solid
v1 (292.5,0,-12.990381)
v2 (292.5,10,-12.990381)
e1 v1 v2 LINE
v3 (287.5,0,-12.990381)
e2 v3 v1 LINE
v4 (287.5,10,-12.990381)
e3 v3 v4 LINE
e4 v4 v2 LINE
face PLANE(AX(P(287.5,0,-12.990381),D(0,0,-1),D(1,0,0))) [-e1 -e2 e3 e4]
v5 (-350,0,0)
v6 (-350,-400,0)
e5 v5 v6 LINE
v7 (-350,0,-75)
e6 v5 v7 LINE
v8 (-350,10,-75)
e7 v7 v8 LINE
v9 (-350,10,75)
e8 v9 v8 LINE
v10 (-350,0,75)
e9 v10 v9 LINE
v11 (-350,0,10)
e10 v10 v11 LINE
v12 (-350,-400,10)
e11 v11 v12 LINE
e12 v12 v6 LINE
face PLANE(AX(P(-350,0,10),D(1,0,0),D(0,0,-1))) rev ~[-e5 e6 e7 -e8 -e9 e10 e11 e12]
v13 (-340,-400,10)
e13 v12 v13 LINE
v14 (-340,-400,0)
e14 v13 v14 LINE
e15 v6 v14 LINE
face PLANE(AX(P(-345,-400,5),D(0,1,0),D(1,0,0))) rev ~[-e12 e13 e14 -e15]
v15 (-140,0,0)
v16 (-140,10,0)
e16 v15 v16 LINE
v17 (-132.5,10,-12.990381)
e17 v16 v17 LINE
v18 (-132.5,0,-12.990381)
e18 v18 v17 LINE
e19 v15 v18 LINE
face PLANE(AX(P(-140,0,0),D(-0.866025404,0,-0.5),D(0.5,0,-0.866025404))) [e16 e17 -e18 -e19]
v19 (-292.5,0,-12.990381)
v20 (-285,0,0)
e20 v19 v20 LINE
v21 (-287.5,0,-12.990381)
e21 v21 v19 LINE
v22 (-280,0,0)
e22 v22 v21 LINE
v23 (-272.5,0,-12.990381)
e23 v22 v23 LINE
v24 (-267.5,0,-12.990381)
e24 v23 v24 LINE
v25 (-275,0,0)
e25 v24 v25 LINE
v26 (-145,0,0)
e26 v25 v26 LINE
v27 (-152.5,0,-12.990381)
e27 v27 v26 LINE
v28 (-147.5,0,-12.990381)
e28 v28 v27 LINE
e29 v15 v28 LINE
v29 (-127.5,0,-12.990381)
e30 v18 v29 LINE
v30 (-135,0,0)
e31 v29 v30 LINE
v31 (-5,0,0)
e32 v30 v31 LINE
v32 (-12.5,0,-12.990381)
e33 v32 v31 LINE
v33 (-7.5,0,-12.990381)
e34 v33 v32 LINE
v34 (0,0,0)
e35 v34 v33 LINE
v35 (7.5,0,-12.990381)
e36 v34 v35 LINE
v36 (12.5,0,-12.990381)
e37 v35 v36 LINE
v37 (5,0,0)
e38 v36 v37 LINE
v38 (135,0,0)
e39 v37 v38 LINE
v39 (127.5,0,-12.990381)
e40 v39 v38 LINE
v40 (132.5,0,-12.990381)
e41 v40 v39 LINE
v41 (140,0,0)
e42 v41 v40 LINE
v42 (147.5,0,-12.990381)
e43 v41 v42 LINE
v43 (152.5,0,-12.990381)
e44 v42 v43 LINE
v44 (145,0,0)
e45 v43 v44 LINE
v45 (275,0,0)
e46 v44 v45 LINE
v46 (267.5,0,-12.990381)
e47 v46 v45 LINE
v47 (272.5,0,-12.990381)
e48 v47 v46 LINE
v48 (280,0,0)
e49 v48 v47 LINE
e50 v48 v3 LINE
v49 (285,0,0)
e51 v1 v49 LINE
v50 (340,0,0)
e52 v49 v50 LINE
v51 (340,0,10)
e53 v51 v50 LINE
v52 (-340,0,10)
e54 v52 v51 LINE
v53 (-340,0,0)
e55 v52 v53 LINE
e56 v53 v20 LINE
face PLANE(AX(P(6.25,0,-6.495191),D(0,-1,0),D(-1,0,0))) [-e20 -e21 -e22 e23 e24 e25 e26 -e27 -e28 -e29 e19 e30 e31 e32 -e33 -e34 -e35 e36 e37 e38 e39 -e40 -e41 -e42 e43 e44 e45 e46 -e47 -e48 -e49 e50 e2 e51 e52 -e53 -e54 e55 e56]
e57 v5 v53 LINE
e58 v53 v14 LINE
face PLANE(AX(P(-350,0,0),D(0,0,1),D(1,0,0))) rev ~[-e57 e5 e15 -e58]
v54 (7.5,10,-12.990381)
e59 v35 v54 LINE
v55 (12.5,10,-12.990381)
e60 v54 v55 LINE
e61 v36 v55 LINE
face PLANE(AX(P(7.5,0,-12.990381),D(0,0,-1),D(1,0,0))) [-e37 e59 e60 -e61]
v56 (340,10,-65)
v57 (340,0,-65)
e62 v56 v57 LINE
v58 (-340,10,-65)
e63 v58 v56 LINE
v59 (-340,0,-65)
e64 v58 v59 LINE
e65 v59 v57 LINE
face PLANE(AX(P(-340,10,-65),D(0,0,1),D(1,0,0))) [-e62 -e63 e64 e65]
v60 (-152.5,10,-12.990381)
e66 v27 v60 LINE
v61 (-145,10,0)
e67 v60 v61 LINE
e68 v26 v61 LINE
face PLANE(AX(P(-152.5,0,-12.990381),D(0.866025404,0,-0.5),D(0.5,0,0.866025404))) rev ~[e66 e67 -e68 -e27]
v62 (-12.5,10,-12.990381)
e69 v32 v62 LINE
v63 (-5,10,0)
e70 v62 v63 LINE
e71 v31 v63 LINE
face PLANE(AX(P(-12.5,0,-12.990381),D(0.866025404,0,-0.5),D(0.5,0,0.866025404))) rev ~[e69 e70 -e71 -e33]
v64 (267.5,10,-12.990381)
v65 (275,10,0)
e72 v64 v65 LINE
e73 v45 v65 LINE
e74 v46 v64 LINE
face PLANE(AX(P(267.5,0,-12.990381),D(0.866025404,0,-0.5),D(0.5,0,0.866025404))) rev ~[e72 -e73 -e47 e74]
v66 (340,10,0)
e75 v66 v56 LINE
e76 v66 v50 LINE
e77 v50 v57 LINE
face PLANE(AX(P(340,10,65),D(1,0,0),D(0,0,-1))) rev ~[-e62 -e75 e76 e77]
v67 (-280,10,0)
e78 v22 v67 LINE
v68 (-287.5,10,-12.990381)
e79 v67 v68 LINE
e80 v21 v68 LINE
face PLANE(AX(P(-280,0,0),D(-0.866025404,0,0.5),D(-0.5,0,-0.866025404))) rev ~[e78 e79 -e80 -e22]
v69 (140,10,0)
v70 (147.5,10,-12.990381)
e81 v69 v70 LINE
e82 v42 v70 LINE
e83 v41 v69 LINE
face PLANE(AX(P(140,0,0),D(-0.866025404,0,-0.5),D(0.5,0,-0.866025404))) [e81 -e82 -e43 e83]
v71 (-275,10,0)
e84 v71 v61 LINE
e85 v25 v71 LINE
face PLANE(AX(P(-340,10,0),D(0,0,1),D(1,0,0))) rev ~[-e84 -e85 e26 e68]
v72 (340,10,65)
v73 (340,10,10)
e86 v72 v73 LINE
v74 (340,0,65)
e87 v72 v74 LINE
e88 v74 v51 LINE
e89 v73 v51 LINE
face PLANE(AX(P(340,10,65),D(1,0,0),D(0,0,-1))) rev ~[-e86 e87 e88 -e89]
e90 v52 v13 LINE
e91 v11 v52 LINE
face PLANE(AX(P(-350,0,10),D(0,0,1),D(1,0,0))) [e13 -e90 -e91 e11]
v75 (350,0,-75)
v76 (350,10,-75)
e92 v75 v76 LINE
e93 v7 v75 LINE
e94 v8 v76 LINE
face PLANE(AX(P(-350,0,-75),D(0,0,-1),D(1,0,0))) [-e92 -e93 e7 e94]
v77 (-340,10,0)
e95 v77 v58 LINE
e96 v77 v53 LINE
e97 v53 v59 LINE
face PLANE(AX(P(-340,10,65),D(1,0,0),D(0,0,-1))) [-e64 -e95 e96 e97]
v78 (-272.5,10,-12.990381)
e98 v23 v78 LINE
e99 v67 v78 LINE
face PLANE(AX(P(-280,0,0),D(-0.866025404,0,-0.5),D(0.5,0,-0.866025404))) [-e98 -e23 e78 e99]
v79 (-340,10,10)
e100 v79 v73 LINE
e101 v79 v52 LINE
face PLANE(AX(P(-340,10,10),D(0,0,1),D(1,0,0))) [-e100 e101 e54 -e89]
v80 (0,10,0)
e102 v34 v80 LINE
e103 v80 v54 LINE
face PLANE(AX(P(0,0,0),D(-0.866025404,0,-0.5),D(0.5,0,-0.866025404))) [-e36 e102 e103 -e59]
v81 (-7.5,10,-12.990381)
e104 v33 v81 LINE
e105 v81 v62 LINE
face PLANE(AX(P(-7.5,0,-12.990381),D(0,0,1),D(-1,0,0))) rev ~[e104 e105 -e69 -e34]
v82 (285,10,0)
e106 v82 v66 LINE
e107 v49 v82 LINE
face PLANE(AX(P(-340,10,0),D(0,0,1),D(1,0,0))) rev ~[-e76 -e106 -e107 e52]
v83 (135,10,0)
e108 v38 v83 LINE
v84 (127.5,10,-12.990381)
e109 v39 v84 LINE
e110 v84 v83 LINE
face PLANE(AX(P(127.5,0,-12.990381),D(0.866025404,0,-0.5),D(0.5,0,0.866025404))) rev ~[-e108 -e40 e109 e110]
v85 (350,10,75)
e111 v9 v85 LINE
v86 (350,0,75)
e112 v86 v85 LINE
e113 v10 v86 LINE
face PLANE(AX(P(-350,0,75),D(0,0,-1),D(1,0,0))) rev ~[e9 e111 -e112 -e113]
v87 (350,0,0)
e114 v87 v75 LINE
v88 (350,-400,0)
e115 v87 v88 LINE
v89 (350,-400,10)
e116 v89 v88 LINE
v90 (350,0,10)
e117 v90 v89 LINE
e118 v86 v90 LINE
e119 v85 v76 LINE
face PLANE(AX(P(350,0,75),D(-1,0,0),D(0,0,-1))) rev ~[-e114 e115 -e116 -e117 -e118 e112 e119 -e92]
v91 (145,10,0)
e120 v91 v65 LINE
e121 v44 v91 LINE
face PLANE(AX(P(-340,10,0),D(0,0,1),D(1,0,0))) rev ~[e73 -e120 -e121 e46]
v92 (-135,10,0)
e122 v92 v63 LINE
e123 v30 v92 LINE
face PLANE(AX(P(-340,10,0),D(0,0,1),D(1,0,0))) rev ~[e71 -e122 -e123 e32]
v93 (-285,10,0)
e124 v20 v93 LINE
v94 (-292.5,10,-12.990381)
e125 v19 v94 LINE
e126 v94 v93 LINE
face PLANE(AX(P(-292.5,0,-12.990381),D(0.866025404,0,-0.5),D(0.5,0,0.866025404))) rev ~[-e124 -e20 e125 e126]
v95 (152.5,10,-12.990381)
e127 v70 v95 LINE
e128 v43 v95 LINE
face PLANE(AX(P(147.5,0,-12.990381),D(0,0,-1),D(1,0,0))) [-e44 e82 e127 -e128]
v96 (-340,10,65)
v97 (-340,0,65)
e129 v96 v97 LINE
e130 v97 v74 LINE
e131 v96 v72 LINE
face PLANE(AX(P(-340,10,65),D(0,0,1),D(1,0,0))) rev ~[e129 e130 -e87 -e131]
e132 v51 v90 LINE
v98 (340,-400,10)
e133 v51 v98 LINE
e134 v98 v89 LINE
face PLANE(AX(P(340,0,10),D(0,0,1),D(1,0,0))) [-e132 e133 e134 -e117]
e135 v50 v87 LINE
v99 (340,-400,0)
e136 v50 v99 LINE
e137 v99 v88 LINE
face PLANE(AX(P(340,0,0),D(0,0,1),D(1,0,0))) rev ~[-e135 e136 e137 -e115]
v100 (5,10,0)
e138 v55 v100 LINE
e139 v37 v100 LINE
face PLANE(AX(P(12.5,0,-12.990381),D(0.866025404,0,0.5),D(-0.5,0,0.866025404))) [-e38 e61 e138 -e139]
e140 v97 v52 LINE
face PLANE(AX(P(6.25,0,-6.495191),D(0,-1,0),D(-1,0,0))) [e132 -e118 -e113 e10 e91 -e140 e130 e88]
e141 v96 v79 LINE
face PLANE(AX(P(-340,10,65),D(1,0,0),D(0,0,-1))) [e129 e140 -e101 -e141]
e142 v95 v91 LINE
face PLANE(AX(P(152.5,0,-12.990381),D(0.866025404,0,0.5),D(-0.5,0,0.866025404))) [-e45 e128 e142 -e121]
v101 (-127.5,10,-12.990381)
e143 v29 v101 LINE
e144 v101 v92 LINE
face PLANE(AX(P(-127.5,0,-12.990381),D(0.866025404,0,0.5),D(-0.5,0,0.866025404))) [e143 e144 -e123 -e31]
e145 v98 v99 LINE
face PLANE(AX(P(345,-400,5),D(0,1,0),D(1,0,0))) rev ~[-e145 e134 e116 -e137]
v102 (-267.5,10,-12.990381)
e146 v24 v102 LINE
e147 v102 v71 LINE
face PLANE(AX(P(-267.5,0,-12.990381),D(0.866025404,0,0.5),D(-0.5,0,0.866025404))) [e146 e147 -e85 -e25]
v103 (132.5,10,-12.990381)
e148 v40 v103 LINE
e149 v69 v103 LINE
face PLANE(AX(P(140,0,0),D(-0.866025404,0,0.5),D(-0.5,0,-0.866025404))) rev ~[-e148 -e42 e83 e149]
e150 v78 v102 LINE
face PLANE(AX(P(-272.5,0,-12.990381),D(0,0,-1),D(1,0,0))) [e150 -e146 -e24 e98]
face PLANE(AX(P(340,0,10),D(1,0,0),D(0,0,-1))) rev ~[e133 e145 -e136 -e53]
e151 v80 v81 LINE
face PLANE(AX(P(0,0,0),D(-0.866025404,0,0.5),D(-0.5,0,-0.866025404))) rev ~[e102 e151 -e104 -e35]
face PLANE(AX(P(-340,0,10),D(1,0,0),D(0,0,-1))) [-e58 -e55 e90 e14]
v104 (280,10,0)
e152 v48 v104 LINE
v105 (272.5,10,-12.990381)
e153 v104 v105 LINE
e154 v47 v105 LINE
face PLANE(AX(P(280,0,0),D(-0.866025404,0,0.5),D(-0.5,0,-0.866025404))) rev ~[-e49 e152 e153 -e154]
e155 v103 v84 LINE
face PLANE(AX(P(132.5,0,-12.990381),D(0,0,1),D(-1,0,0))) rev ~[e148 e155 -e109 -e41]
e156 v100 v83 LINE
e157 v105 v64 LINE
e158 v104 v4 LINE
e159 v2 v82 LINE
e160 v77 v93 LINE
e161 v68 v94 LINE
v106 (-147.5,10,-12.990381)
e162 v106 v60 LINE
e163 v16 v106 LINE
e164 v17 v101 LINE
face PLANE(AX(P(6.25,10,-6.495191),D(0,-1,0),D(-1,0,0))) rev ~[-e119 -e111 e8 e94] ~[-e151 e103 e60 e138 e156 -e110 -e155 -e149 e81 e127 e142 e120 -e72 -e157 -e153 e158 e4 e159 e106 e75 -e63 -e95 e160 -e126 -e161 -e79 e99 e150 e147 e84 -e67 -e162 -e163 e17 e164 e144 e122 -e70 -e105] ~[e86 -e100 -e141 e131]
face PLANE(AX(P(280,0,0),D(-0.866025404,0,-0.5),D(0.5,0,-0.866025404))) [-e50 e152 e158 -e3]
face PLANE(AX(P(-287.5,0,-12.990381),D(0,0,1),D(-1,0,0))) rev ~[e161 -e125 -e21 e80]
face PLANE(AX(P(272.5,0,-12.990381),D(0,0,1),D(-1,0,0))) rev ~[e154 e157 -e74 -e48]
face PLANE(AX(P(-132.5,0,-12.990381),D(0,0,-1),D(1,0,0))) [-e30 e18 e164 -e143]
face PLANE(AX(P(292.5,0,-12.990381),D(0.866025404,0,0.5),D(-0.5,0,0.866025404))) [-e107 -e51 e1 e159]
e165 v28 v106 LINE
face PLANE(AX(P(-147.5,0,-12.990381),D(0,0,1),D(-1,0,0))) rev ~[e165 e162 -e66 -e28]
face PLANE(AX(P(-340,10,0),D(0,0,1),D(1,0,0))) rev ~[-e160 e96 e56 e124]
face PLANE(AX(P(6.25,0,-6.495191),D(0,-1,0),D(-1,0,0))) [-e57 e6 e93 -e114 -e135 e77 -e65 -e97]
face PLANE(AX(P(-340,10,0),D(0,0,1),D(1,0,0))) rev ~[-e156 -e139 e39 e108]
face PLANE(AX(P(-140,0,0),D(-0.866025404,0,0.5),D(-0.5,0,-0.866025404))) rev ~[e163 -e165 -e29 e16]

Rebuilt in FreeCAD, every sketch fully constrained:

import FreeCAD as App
import Part
import Sketcher

V = App.Vector
Q = App.Units.Quantity


def add_polygon(sketch, points):
    """Adds a closed chain of lines whose ends are joined by coincident constraints."""
    first, n = sketch.GeometryCount, len(points)
    for a, b in zip(points, points[1:] + points[:1]):
        sketch.addGeometry(Part.LineSegment(App.Vector(*a, 0), App.Vector(*b, 0)), False)
    for i in range(n):
        sketch.addConstraint(Sketcher.Constraint("Coincident", first + i, 2, first + (i + 1) % n, 1))

doc = App.newDocument("Part")
body = doc.addObject("PartDesign::Body", "Body")

sketch1 = doc.addObject("Sketcher::SketchObject", "Sketch")
body.addObject(sketch1)
sketch1.AttachmentSupport = (doc.XZ_Plane, [""])
sketch1.MapMode = "FlatFace"
add_polygon(sketch1, [(-350, -75), (-350, 75), (350, 75), (350, -75)])
sketch1.addConstraint(Sketcher.Constraint("Vertical", 0))
sketch1.addConstraint(Sketcher.Constraint("Horizontal", 1))
sketch1.addConstraint(Sketcher.Constraint("Vertical", 2))
sketch1.addConstraint(Sketcher.Constraint("Horizontal", 3))
sketch1.addConstraint(Sketcher.Constraint("Symmetric", 0, 2, 2, 2, -1, 1))
sketch1.addConstraint(Sketcher.Constraint("DistanceX", 1, 1, 1, 2, 700.0))
sketch1.addConstraint(Sketcher.Constraint("DistanceY", 0, 1, 0, 2, 150.0))
pad1 = doc.addObject("PartDesign::Pad", "Pad")
body.addObject(pad1)
pad1.Profile = sketch1
pad1.Length = 10
pad1.Reversed = True

sketch2 = doc.addObject("Sketcher::SketchObject", "Sketch001")
body.addObject(sketch2)
sketch2.AttachmentSupport = (doc.XZ_Plane, [""])
sketch2.MapMode = "FlatFace"
sketch2.AttachmentOffset = App.Placement(V(0, 0, -10), App.Rotation())
add_polygon(sketch2, [(-340, -65), (-340, 65), (340, 65), (340, -65)])
sketch2.addConstraint(Sketcher.Constraint("Vertical", 0))
sketch2.addConstraint(Sketcher.Constraint("Horizontal", 1))
sketch2.addConstraint(Sketcher.Constraint("Vertical", 2))
sketch2.addConstraint(Sketcher.Constraint("Horizontal", 3))
sketch2.addConstraint(Sketcher.Constraint("Symmetric", 0, 2, 2, 2, -1, 1))
sketch2.addConstraint(Sketcher.Constraint("DistanceX", 1, 1, 1, 2, 680.0))
sketch2.addConstraint(Sketcher.Constraint("DistanceY", 0, 1, 0, 2, 130.0))
pocket1 = doc.addObject("PartDesign::Pocket", "Pocket")
body.addObject(pocket1)
pocket1.Profile = sketch2
pocket1.Length = 10
pocket1.Reversed = True

sketch3 = doc.addObject("Sketcher::SketchObject", "Sketch002")
body.addObject(sketch3)
sketch3.AttachmentSupport = (doc.XZ_Plane, [""])
sketch3.MapMode = "FlatFace"
sketch3.AttachmentOffset = App.Placement(V(0, 0, -10), App.Rotation())
add_polygon(sketch3, [(-340, 0), (-340, 10), (340, 10), (340, 0)])
sketch3.addConstraint(Sketcher.Constraint("Vertical", 0))
sketch3.addConstraint(Sketcher.Constraint("Horizontal", 1))
sketch3.addConstraint(Sketcher.Constraint("Vertical", 2))
sketch3.addConstraint(Sketcher.Constraint("Horizontal", 3))
sketch3.addConstraint(Sketcher.Constraint("Symmetric", 2, 2, 3, 2, -1, 1))
sketch3.addConstraint(Sketcher.Constraint("DistanceX", 1, 1, 1, 2, 680.0))
sketch3.addConstraint(Sketcher.Constraint("DistanceY", 0, 1, 0, 2, 10.0))
pad2 = doc.addObject("PartDesign::Pad", "Pad001")
body.addObject(pad2)
pad2.Profile = sketch3
pad2.Length = 10

sketch4 = doc.addObject("Sketcher::SketchObject", "Sketch003")
body.addObject(sketch4)
sketch4.AttachmentSupport = (doc.XZ_Plane, [""])
sketch4.MapMode = "FlatFace"
add_polygon(sketch4, [(0, 0), (5, 0), (12, -13), (8, -13)])
add_polygon(sketch4, [(148, -13), (140, 0), (145, 0), (152, -13)])
add_polygon(sketch4, [(140, 0), (132, -13), (128, -13), (135, 0)])
add_polygon(sketch4, [(0, 0), (-8, -13), (-12, -13), (-5, 0)])
add_polygon(sketch4, [(-132, -13), (-140, 0), (-135, 0), (-128, -13)])
add_polygon(sketch4, [(-140, 0), (-148, -13), (-152, -13), (-145, 0)])
add_polygon(sketch4, [(-272, -13), (-280, 0), (-275, 0), (-268, -13)])
add_polygon(sketch4, [(-280, 0), (-288, -13), (-292, -13), (-285, 0)])
add_polygon(sketch4, [(280, 0), (272, -13), (268, -13), (275, 0)])
add_polygon(sketch4, [(288, -13), (280, 0), (285, 0), (292, -13)])
sketch4.addConstraint(Sketcher.Constraint("Horizontal", 0))
sketch4.addConstraint(Sketcher.Constraint("Horizontal", 2))
sketch4.addConstraint(Sketcher.Constraint("Horizontal", 5))
sketch4.addConstraint(Sketcher.Constraint("Horizontal", 7))
sketch4.addConstraint(Sketcher.Constraint("Horizontal", 9))
sketch4.addConstraint(Sketcher.Constraint("Horizontal", 11))
sketch4.addConstraint(Sketcher.Constraint("Horizontal", 13))
sketch4.addConstraint(Sketcher.Constraint("Horizontal", 15))
sketch4.addConstraint(Sketcher.Constraint("Horizontal", 17))
sketch4.addConstraint(Sketcher.Constraint("Horizontal", 19))
sketch4.addConstraint(Sketcher.Constraint("Horizontal", 21))
sketch4.addConstraint(Sketcher.Constraint("Horizontal", 23))
sketch4.addConstraint(Sketcher.Constraint("Horizontal", 25))
sketch4.addConstraint(Sketcher.Constraint("Horizontal", 27))
sketch4.addConstraint(Sketcher.Constraint("Horizontal", 29))
sketch4.addConstraint(Sketcher.Constraint("Horizontal", 31))
sketch4.addConstraint(Sketcher.Constraint("Horizontal", 33))
sketch4.addConstraint(Sketcher.Constraint("Horizontal", 35))
sketch4.addConstraint(Sketcher.Constraint("Horizontal", 37))
sketch4.addConstraint(Sketcher.Constraint("Horizontal", 39))
sketch4.addConstraint(Sketcher.Constraint("Coincident", 3, 2, -1, 1))
sketch4.addConstraint(Sketcher.Constraint("Coincident", 15, 2, -1, 1))
sketch4.addConstraint(Sketcher.Constraint("Coincident", 11, 2, 4, 2))
sketch4.addConstraint(Sketcher.Constraint("Coincident", 23, 2, 16, 2))
sketch4.addConstraint(Sketcher.Constraint("Coincident", 31, 2, 24, 2))
sketch4.addConstraint(Sketcher.Constraint("Coincident", 36, 2, 35, 2))
sketch4.addConstraint(Sketcher.Constraint("Symmetric", 4, 2, 16, 2, -1, 1))
sketch4.addConstraint(Sketcher.Constraint("Symmetric", 25, 2, 34, 2, -1, 1))
sketch4.addConstraint(Sketcher.Constraint("Symmetric", 2, 2, 12, 2, -2))
sketch4.addConstraint(Sketcher.Constraint("Symmetric", 10, 2, 17, 2, -2))
sketch4.addConstraint(Sketcher.Constraint("Symmetric", 9, 2, 18, 2, -2))
sketch4.addConstraint(Sketcher.Constraint("Symmetric", 7, 2, 20, 2, -2))
sketch4.addConstraint(Sketcher.Constraint("Symmetric", 27, 2, 32, 2, -2))
sketch4.addConstraint(Sketcher.Constraint("Symmetric", 24, 2, 35, 2, -2))
sketch4.addConstraint(Sketcher.Constraint("Symmetric", 29, 2, 38, 2, -2))
sketch4.addConstraint(Sketcher.Constraint("Parallel", 1, 3))
sketch4.addConstraint(Sketcher.Constraint("Parallel", 3, 4))
sketch4.addConstraint(Sketcher.Constraint("Parallel", 4, 6))
sketch4.addConstraint(Sketcher.Constraint("Parallel", 8, 10))
sketch4.addConstraint(Sketcher.Constraint("Parallel", 10, 12))
sketch4.addConstraint(Sketcher.Constraint("Parallel", 12, 14))
sketch4.addConstraint(Sketcher.Constraint("Parallel", 6, 16))
sketch4.addConstraint(Sketcher.Constraint("Parallel", 20, 22))
sketch4.addConstraint(Sketcher.Constraint("Parallel", 18, 24))
sketch4.addConstraint(Sketcher.Constraint("Parallel", 24, 26))
sketch4.addConstraint(Sketcher.Constraint("Parallel", 22, 28))
sketch4.addConstraint(Sketcher.Constraint("Parallel", 28, 30))
sketch4.addConstraint(Sketcher.Constraint("Parallel", 32, 34))
sketch4.addConstraint(Sketcher.Constraint("Parallel", 26, 36))
sketch4.addConstraint(Sketcher.Constraint("Parallel", 36, 38))
sketch4.addConstraint(Sketcher.Constraint("Horizontal", 2, 2, 6, 2))
sketch4.addConstraint(Sketcher.Constraint("Horizontal", 7, 2, 8, 2))
sketch4.addConstraint(Sketcher.Constraint("Horizontal", 21, 2, 26, 2))
sketch4.addConstraint(Sketcher.Constraint("Horizontal", 27, 2, 28, 2))
sketch4.addConstraint(Sketcher.Constraint("Equal", 2, 5))
sketch4.addConstraint(Sketcher.Constraint("Equal", 7, 9))
sketch4.addConstraint(Sketcher.Constraint("Equal", 11, 13))
sketch4.addConstraint(Sketcher.Constraint("Equal", 19, 21))
sketch4.addConstraint(Sketcher.Constraint("Equal", 23, 25))
sketch4.addConstraint(Sketcher.Constraint("Equal", 27, 29))
sketch4.addConstraint(Sketcher.Constraint("DistanceX", 0, 1, 0, 2, 5.0))
sketch4.addConstraint(Sketcher.Constraint("Angle", 1, Q("-60 deg")))
sketch4.addConstraint(Sketcher.Constraint("Distance", 1, 15.0))
sketch4.addConstraint(Sketcher.Constraint("DistanceX", -1, 1, 4, 2, 140.0))
sketch4.addConstraint(Sketcher.Constraint("DistanceX", 24, 2, -1, 1, 280.0))
pad3 = doc.addObject("PartDesign::Pad", "Pad002")
body.addObject(pad3)
pad3.Profile = sketch4
pad3.Length = 10
pad3.Reversed = True

sketch5 = doc.addObject("Sketcher::SketchObject", "Sketch004")
body.addObject(sketch5)
sketch5.AttachmentSupport = (doc.XZ_Plane, [""])
sketch5.MapMode = "FlatFace"
add_polygon(sketch5, [(-350, 0), (-350, 10), (-340, 10), (-340, 0)])
add_polygon(sketch5, [(340, 0), (340, 10), (350, 10), (350, 0)])
sketch5.addConstraint(Sketcher.Constraint("Vertical", 0))
sketch5.addConstraint(Sketcher.Constraint("Horizontal", 1))
sketch5.addConstraint(Sketcher.Constraint("Vertical", 2))
sketch5.addConstraint(Sketcher.Constraint("Horizontal", 3))
sketch5.addConstraint(Sketcher.Constraint("Vertical", 4))
sketch5.addConstraint(Sketcher.Constraint("Horizontal", 5))
sketch5.addConstraint(Sketcher.Constraint("Vertical", 6))
sketch5.addConstraint(Sketcher.Constraint("Horizontal", 7))
sketch5.addConstraint(Sketcher.Constraint("Symmetric", 3, 2, 6, 2, -1, 1))
sketch5.addConstraint(Sketcher.Constraint("Symmetric", 1, 2, 4, 2, -2))
sketch5.addConstraint(Sketcher.Constraint("PointOnObject", 2, 2, -1))
sketch5.addConstraint(Sketcher.Constraint("Equal", 7, 0))
sketch5.addConstraint(Sketcher.Constraint("DistanceX", 1, 1, 1, 2, 10.0))
sketch5.addConstraint(Sketcher.Constraint("DistanceX", 0, 2, -1, 1, 350.0))
pad4 = doc.addObject("PartDesign::Pad", "Pad003")
body.addObject(pad4)
pad4.Profile = sketch5
pad4.Length = 400

doc.recompute()
